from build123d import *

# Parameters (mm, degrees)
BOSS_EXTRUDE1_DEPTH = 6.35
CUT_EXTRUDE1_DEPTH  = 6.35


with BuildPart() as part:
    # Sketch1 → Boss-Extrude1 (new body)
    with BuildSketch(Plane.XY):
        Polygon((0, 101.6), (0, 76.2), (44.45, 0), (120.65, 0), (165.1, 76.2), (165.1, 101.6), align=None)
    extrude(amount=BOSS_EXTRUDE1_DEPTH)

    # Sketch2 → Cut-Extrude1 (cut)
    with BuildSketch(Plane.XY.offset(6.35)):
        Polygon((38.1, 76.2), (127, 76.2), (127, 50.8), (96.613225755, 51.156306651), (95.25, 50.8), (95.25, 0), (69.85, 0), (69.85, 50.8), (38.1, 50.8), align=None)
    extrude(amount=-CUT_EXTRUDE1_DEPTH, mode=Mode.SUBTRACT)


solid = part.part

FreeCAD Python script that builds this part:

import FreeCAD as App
import Part
import Sketcher

V = App.Vector
Q = App.Units.Quantity


def add_polygon(sketch, points):
    """Adds a closed chain of lines whose ends are joined by coincident constraints."""
    first, n = sketch.GeometryCount, len(points)
    for a, b in zip(points, points[1:] + points[:1]):
        sketch.addGeometry(Part.LineSegment(App.Vector(*a, 0), App.Vector(*b, 0)), False)
    for i in range(n):
        sketch.addConstraint(Sketcher.Constraint("Coincident", first + i, 2, first + (i + 1) % n, 1))

doc = App.newDocument("Part")
body = doc.addObject("PartDesign::Body", "Body")

# Sketch on XY plane
sketch1 = body.newObject("Sketcher::SketchObject", "Sketch")
sketch1.AttachmentSupport = (doc.getObject("XY_Plane"), [""])
sketch1.MapMode = "FlatFace"
add_polygon(sketch1, [(0, 102), (0, 76), (44, 0), (121, 0), (165, 76), (165, 102)])  # lines 0-5
sketch1.addConstraint(Sketcher.Constraint("Vertical", 0))
sketch1.addConstraint(Sketcher.Constraint("Horizontal", 2))
sketch1.addConstraint(Sketcher.Constraint("Vertical", 4))
sketch1.addConstraint(Sketcher.Constraint("Horizontal", 5))
sketch1.addConstraint(Sketcher.Constraint("PointOnObject", 0, 2, -2))
sketch1.addConstraint(Sketcher.Constraint("PointOnObject", 1, 2, -1))
sketch1.addConstraint(Sketcher.Constraint("Horizontal", 0, 2, 3, 2))
sketch1.addConstraint(Sketcher.Constraint("Equal", 1, 3))
sketch1.addConstraint(Sketcher.Constraint("DistanceX", 2, 1, 2, 2, Q("3 in")))
sketch1.addConstraint(Sketcher.Constraint("DistanceY", 0, 2, 0, 1, Q("1 in")))
sketch1.addConstraint(Sketcher.Constraint("DistanceX", 5, 2, 5, 1, Q("6.5 in")))
sketch1.addConstraint(Sketcher.Constraint("DistanceY", -1, 1, 0, 2, Q("3 in")))
pad1 = body.newObject("PartDesign::Pad", "Pad")
pad1.Profile = sketch1
pad1.Length = Q("0.25 in")

# Sketch on XY plane
sketch2 = body.newObject("Sketcher::SketchObject", "Sketch001")
sketch2.AttachmentSupport = (doc.getObject("XY_Plane"), [""])
sketch2.MapMode = "FlatFace"
sketch2.AttachmentOffset = App.Placement(V(0, 0, 0.25 * 25.4), App.Rotation())
add_polygon(sketch2, [(127, 76.2), (38.1, 76.2), (38.1, 50.8), (69.8, 50.8), (69.8, 0), (95.2, 0), (95.2, 50.8), (96.6, 51.2), (127, 50.8)])  # lines 0-8
sketch2.addConstraint(Sketcher.Constraint("Horizontal", 0))
sketch2.addConstraint(Sketcher.Constraint("Vertical", 1))
sketch2.addConstraint(Sketcher.Constraint("Horizontal", 2))
sketch2.addConstraint(Sketcher.Constraint("Vertical", 3))
sketch2.addConstraint(Sketcher.Constraint("Horizontal", 4))
sketch2.addConstraint(Sketcher.Constraint("Vertical", 5))
sketch2.addConstraint(Sketcher.Constraint("Vertical", 8))
sketch2.addConstraint(Sketcher.Constraint("PointOnObject", 3, 2, -1))
sketch2.addConstraint(Sketcher.Constraint("Horizontal", 2, 2, 5, 2))
sketch2.addConstraint(Sketcher.Constraint("Horizontal", 5, 2, 7, 2))
sketch2.addConstraint(Sketcher.Constraint("Equal", 4, 1))
sketch2.addConstraint(Sketcher.Constraint("DistanceX", 4, 1, 4, 2, Q("1 in")))
sketch2.addConstraint(Sketcher.Constraint("DistanceY", 3, 2, 3, 1, Q("2 in")))
sketch2.addConstraint(Sketcher.Constraint("DistanceX", 0, 2, 0, 1, Q("3.5 in")))
sketch2.addConstraint(Sketcher.Constraint("DistanceX", -1, 1, 7, 2, Q("5 in")))
sketch2.addConstraint(Sketcher.Constraint("DistanceX", 2, 1, 2, 2, Q("1.25 in")))
sketch2.addConstraint(Sketcher.Constraint("Distance", 6, 1.409021))
sketch2.addConstraint(Sketcher.Constraint("Distance", 7, 30.388863))
pocket1 = body.newObject("PartDesign::Pocket", "Pocket")
pocket1.Profile = sketch2
pocket1.Length = Q("0.25 in")

doc.recompute()
